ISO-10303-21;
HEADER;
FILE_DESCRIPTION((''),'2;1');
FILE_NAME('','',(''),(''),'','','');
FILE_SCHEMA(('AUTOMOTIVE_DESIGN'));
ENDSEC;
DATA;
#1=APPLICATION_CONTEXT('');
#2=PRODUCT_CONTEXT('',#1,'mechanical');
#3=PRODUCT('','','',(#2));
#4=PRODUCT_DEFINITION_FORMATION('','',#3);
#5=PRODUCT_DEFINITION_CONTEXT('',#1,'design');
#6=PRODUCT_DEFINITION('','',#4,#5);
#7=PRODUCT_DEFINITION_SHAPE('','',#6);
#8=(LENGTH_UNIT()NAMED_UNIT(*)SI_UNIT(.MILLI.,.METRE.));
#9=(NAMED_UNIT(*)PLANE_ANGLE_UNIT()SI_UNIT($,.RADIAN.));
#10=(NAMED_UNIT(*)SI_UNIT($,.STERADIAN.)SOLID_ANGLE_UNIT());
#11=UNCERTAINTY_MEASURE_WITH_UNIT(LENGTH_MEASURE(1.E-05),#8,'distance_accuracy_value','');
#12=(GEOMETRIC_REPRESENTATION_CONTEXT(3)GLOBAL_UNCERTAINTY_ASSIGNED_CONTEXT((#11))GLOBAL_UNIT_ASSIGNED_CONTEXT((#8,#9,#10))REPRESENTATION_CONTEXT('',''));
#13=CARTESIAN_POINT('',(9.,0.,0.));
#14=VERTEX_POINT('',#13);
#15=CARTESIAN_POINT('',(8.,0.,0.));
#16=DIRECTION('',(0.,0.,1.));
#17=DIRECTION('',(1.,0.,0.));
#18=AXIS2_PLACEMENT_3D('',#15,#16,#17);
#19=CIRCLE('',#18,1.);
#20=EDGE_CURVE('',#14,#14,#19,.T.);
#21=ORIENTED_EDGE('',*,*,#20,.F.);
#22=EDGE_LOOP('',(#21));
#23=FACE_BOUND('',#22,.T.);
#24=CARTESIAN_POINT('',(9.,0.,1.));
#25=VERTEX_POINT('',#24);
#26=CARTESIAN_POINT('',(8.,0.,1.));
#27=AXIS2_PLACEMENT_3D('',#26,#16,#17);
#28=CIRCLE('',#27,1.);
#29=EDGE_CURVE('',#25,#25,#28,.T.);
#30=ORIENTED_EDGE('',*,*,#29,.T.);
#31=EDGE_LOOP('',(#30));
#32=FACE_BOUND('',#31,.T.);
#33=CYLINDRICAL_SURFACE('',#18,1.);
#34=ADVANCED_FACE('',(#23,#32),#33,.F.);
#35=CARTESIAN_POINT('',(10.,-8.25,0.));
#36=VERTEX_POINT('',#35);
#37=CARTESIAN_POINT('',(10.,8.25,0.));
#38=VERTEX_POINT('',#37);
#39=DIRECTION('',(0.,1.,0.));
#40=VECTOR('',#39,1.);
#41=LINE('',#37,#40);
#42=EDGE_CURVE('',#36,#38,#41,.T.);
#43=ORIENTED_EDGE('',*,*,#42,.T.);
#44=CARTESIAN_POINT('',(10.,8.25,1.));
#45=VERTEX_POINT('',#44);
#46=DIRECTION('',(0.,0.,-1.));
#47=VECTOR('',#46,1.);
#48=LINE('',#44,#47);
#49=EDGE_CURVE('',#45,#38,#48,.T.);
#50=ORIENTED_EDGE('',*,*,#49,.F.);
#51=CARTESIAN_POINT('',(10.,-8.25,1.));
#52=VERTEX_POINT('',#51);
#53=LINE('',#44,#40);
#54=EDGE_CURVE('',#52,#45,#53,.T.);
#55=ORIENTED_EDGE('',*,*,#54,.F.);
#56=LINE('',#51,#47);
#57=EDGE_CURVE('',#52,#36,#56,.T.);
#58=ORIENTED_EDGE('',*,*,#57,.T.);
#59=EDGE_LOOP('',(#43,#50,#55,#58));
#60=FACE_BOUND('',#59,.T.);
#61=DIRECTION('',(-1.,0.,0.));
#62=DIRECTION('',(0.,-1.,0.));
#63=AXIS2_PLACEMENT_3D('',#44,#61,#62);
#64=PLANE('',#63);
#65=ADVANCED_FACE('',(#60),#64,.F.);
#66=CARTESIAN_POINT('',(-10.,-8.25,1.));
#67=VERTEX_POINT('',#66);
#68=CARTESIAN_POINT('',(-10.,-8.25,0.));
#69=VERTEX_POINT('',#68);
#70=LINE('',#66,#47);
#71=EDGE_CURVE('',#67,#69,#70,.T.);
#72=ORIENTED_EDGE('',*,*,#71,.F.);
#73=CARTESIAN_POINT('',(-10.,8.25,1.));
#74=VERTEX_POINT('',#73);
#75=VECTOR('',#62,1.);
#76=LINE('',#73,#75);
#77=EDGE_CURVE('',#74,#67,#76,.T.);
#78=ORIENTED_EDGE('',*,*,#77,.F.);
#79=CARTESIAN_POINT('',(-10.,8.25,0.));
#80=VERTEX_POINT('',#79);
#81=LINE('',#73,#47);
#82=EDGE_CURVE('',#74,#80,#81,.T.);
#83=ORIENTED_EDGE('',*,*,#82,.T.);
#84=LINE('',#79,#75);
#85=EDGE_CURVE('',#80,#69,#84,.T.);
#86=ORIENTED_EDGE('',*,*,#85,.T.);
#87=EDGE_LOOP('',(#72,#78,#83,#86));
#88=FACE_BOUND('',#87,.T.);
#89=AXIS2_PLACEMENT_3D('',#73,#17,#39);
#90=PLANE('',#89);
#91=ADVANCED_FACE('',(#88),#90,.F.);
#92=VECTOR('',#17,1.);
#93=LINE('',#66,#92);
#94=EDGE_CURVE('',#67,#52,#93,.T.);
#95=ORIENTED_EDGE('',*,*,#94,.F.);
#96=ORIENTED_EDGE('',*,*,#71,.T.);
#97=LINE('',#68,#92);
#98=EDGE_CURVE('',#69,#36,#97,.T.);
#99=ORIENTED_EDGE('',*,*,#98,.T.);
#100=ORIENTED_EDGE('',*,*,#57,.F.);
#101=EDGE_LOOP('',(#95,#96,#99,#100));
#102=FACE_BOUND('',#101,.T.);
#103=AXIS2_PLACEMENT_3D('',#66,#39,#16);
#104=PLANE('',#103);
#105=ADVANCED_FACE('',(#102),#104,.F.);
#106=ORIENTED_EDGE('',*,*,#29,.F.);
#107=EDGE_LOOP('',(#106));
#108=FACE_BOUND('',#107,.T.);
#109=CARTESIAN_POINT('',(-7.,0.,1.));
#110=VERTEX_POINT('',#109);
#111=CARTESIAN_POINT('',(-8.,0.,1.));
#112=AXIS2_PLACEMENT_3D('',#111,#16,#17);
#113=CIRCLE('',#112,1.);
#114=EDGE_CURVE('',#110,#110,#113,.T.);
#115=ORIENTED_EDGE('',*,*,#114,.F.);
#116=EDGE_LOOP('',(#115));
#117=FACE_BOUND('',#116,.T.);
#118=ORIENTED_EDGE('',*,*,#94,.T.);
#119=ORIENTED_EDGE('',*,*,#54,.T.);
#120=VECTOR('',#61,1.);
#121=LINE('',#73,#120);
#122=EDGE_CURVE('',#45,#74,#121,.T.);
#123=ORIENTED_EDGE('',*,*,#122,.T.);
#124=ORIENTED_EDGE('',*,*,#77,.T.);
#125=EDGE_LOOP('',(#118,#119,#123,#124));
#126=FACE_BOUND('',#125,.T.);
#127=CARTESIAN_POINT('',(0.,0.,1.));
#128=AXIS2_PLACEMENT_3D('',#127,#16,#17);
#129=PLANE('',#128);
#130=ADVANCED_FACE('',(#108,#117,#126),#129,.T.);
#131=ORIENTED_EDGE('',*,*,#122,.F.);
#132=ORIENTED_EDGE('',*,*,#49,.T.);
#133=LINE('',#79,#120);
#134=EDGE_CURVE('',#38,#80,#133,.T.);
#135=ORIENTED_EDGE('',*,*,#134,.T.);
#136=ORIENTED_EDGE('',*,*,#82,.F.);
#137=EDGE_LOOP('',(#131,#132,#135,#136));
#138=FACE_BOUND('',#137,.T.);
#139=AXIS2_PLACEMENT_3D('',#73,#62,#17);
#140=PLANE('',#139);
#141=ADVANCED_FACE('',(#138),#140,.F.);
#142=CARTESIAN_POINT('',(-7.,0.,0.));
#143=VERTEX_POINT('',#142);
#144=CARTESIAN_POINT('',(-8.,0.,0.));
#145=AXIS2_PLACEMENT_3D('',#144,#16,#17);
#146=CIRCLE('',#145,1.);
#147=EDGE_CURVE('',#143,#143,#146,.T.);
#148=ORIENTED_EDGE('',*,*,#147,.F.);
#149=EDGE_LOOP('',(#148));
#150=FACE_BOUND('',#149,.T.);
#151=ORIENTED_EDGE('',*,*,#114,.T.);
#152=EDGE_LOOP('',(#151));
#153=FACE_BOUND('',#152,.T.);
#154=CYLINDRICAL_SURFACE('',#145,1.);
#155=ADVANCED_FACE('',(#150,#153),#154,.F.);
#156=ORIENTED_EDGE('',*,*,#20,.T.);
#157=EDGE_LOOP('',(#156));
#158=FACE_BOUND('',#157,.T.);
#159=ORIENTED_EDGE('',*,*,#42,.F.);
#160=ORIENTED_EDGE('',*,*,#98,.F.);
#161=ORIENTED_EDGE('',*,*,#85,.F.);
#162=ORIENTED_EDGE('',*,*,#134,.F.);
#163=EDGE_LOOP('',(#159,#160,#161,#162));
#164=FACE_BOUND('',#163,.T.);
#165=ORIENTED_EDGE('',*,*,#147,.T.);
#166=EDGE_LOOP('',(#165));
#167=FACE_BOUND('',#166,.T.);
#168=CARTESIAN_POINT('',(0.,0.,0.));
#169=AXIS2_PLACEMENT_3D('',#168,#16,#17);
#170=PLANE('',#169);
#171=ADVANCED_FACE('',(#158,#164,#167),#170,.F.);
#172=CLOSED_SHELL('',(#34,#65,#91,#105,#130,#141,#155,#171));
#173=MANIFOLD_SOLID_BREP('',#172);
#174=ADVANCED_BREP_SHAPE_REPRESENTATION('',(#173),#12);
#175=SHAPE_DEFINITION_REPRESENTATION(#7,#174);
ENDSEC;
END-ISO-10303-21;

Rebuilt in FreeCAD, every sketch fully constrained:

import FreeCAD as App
import Part
import Sketcher


def add_polygon(sketch, points):
    """Adds a closed chain of lines whose ends are joined by coincident constraints."""
    first, n = sketch.GeometryCount, len(points)
    for a, b in zip(points, points[1:] + points[:1]):
        sketch.addGeometry(Part.LineSegment(App.Vector(*a, 0), App.Vector(*b, 0)), False)
    for i in range(n):
        sketch.addConstraint(Sketcher.Constraint("Coincident", first + i, 2, first + (i + 1) % n, 1))

doc = App.newDocument("Part")
body = doc.addObject("PartDesign::Body", "Body")

sketch1 = body.newObject("Sketcher::SketchObject", "Sketch")
sketch1.AttachmentSupport = (doc.getObject("XY_Plane"), [""])
sketch1.MapMode = "FlatFace"
add_polygon(sketch1, [(-10, 8), (-10, -8), (10, -8), (10, 8)])
sketch1.addConstraint(Sketcher.Constraint("Vertical", 0))
sketch1.addConstraint(Sketcher.Constraint("Horizontal", 1))
sketch1.addConstraint(Sketcher.Constraint("Vertical", 2))
sketch1.addConstraint(Sketcher.Constraint("Horizontal", 3))
sketch1.addConstraint(Sketcher.Constraint("Symmetric", 0, 2, 2, 2, -1, 1))
sketch1.addConstraint(Sketcher.Constraint("DistanceX", 1, 1, 1, 2, 20.0))
sketch1.addConstraint(Sketcher.Constraint("DistanceY", 0, 2, 0, 1, 16.5))
pad1 = body.newObject("PartDesign::Pad", "Pad")
pad1.Profile = sketch1
pad1.Length = 1

sketch2 = body.newObject("Sketcher::SketchObject", "Sketch001")
sketch2.AttachmentSupport = (doc.getObject("XY_Plane"), [""])
sketch2.MapMode = "FlatFace"
sketch2.AttachmentOffset = App.Placement(App.Vector(0, 0, 1), App.Rotation())
sketch2.addGeometry(Part.Circle(App.Vector(-8, 0, 0), App.Vector(0, 0, 1), 1), False)
sketch2.addGeometry(Part.Circle(App.Vector(8, 0, 0), App.Vector(0, 0, 1), 1), False)
sketch2.addConstraint(Sketcher.Constraint("Equal", 0, 1))
sketch2.addConstraint(Sketcher.Constraint("Symmetric", 0, 3, 1, 3, -1, 1))
sketch2.addConstraint(Sketcher.Constraint("PointOnObject", 0, 3, -1))
sketch2.addConstraint(Sketcher.Constraint("Diameter", 0, 2.0))
sketch2.addConstraint(Sketcher.Constraint("DistanceX", 0, 3, -1, 1, 8.0))
pocket1 = body.newObject("PartDesign::Pocket", "Pocket")
pocket1.Profile = sketch2
pocket1.Type = "ThroughAll"

doc.recompute()
